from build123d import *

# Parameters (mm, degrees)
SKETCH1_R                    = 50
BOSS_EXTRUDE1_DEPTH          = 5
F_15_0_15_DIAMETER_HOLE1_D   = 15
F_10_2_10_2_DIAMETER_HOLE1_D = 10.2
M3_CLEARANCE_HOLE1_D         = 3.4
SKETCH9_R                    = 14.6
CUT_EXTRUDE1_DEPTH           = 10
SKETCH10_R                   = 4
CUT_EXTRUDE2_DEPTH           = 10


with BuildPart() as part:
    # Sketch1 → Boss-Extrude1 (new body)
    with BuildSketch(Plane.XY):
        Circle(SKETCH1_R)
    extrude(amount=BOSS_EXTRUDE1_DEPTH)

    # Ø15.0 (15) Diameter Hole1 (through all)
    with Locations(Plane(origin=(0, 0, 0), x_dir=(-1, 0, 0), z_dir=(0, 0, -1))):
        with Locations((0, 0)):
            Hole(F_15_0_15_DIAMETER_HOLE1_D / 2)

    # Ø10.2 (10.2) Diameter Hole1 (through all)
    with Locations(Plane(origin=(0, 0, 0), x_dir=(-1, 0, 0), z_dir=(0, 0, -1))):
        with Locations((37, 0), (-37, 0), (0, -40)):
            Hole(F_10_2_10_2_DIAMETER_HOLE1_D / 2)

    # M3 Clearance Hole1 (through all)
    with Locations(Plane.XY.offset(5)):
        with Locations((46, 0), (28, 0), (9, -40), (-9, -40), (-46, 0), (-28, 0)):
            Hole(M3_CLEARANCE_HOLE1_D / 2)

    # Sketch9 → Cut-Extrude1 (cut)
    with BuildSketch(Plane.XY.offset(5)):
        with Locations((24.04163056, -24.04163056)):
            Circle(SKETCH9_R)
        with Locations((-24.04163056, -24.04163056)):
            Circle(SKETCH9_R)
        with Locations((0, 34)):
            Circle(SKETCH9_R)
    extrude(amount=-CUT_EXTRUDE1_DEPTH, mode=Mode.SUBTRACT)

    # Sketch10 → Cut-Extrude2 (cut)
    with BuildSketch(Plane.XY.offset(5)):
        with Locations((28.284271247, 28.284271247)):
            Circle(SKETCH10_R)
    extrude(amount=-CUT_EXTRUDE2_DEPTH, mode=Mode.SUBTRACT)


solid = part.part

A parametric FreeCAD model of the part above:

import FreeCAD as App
import Part
import Sketcher

V = App.Vector
Q = App.Units.Quantity

doc = App.newDocument("Part")
body = doc.addObject("PartDesign::Body", "Body")

sketch1 = doc.addObject("Sketcher::SketchObject", "Sketch")
body.addObject(sketch1)
sketch1.AttachmentSupport = (doc.XY_Plane, [""])
sketch1.MapMode = "FlatFace"
sketch1.addGeometry(Part.Circle(V(0, 0, 0), V(0, 0, 1), 50), False)
sketch1.addConstraint([
    Sketcher.Constraint("Coincident", 0, 3, -1, 1),
    Sketcher.Constraint("Diameter", 0, Q("100 mm")),
])
pad1 = doc.addObject("PartDesign::Pad", "Pad")
body.addObject(pad1)
pad1.Profile = sketch1
pad1.Length = 5

sketch2 = doc.addObject("Sketcher::SketchObject", "Sketch001")
body.addObject(sketch2)
sketch2.AttachmentSupport = (doc.XY_Plane, [""])
sketch2.MapMode = "FlatFace"
sketch2.addGeometry(Part.Circle(V(0, 0, 0), V(0, 0, 1), 7.5), False)
sketch2.addConstraint([
    Sketcher.Constraint("Coincident", 0, 3, -1, 1),
    Sketcher.Constraint("Diameter", 0, Q("15 mm")),
])
doc.recompute()
hole = doc.addObject("PartDesign::Hole", "Hole")
body.addObject(hole)
hole.Profile = sketch2
hole.ThreadType = "None"
hole.Diameter = 15
hole.DepthType = "ThroughAll"
hole.Reversed = True

sketch3 = doc.addObject("Sketcher::SketchObject", "Sketch002")
body.addObject(sketch3)
sketch3.AttachmentSupport = (doc.XY_Plane, [""])
sketch3.MapMode = "FlatFace"
sketch3.addGeometry([
    Part.Circle(V(-37, 0, 0), V(0, 0, 1), 5.1),
    Part.Circle(V(37, 0, 0), V(0, 0, 1), 5.1),
    Part.Circle(V(0, -40, 0), V(0, 0, 1), 5.1),
], False)
sketch3.addConstraint([
    Sketcher.Constraint("Equal", 0, 1),
    Sketcher.Constraint("Equal", 1, 2),
    Sketcher.Constraint("Symmetric", 0, 3, 1, 3, -1, 1),
    Sketcher.Constraint("PointOnObject", 0, 3, -1),
    Sketcher.Constraint("PointOnObject", 2, 3, -2),
    Sketcher.Constraint("Diameter", 0, Q("10.2 mm")),
    Sketcher.Constraint("DistanceX", 0, 3, -1, 1, Q("37 mm")),
    Sketcher.Constraint("DistanceY", 2, 3, -1, 1, Q("40 mm")),
])
doc.recompute()
hole2 = doc.addObject("PartDesign::Hole", "Hole001")
body.addObject(hole2)
hole2.Profile = sketch3
hole2.ThreadType = "None"
hole2.Diameter = 10.2
hole2.DepthType = "ThroughAll"
hole2.Reversed = True

sketch4 = doc.addObject("Sketcher::SketchObject", "Sketch003")
body.addObject(sketch4)
sketch4.AttachmentSupport = (doc.XY_Plane, [""])
sketch4.MapMode = "FlatFace"
sketch4.AttachmentOffset = App.Placement(V(0, 0, 5), App.Rotation())
sketch4.addGeometry([
    Part.Circle(V(46, 0, 0), V(0, 0, 1), 1.7),
    Part.Circle(V(28, 0, 0), V(0, 0, 1), 1.7),
    Part.Circle(V(9, -40, 0), V(0, 0, 1), 1.7),
    Part.Circle(V(-9, -40, 0), V(0, 0, 1), 1.7),
    Part.Circle(V(-46, 0, 0), V(0, 0, 1), 1.7),
    Part.Circle(V(-28, 0, 0), V(0, 0, 1), 1.7),
], False)
sketch4.addConstraint([
    Sketcher.Constraint("Equal", 0, 1),
    Sketcher.Constraint("Equal", 1, 2),
    Sketcher.Constraint("Equal", 2, 3),
    Sketcher.Constraint("Equal", 3, 4),
    Sketcher.Constraint("Equal", 4, 5),
    Sketcher.Constraint("Symmetric", 0, 3, 4, 3, -1, 1),
    Sketcher.Constraint("Symmetric", 1, 3, 5, 3, -1, 1),
    Sketcher.Constraint("Symmetric", 2, 3, 3, 3, -2),
    Sketcher.Constraint("PointOnObject", 0, 3, -1),
    Sketcher.Constraint("PointOnObject", 1, 3, -1),
    Sketcher.Constraint("Diameter", 0, Q("3.4 mm")),
    Sketcher.Constraint("DistanceX", -1, 1, 0, 3, Q("46 mm")),
    Sketcher.Constraint("DistanceX", -1, 1, 1, 3, Q("28 mm")),
    Sketcher.Constraint("DistanceX", -1, 1, 2, 3, Q("9 mm")),
    Sketcher.Constraint("DistanceY", 2, 3, -1, 1, Q("40 mm")),
])
doc.recompute()
hole3 = doc.addObject("PartDesign::Hole", "Hole002")
body.addObject(hole3)
hole3.Profile = sketch4
hole3.ThreadType = "None"
hole3.Diameter = 3.4
hole3.DepthType = "ThroughAll"

sketch5 = doc.addObject("Sketcher::SketchObject", "Sketch004")
body.addObject(sketch5)
sketch5.AttachmentSupport = (doc.XY_Plane, [""])
sketch5.MapMode = "FlatFace"
sketch5.AttachmentOffset = App.Placement(V(0, 0, 5), App.Rotation())
sketch5.addGeometry([
    Part.Circle(V(24.041631, -24.041631, 0), V(0, 0, 1), 14.6),
    Part.Circle(V(-24.041631, -24.041631, 0), V(0, 0, 1), 14.6),
    Part.Circle(V(0, 34, 0), V(0, 0, 1), 14.6),
], False)
sketch5.addConstraint([
    Sketcher.Constraint("Equal", 0, 1),
    Sketcher.Constraint("Equal", 1, 2),
    Sketcher.Constraint("Symmetric", 0, 3, 1, 3, -2),
    Sketcher.Constraint("PointOnObject", 2, 3, -2),
    Sketcher.Constraint("Diameter", 0, Q("29.2 mm")),
    Sketcher.Constraint("DistanceY", -1, 1, 2, 3, Q("34 mm")),
    Sketcher.Constraint("DistanceX", -1, 1, 0, 3, Q("24.041631 mm")),
    Sketcher.Constraint("DistanceY", 0, 3, -1, 1, Q("24.041631 mm")),
])
pocket1 = doc.addObject("PartDesign::Pocket", "Pocket")
body.addObject(pocket1)
pocket1.Profile = sketch5
pocket1.Length = 10

sketch6 = doc.addObject("Sketcher::SketchObject", "Sketch005")
body.addObject(sketch6)
sketch6.AttachmentSupport = (doc.XY_Plane, [""])
sketch6.MapMode = "FlatFace"
sketch6.AttachmentOffset = App.Placement(V(0, 0, 5), App.Rotation())
sketch6.addGeometry(Part.Circle(V(28.284271, 28.284271, 0), V(0, 0, 1), 4), False)
sketch6.addConstraint([
    Sketcher.Constraint("Diameter", 0, Q("8 mm")),
    Sketcher.Constraint("DistanceX", -1, 1, 0, 3, Q("28.284271 mm")),
    Sketcher.Constraint("DistanceY", -1, 1, 0, 3, Q("28.284271 mm")),
])
pocket2 = doc.addObject("PartDesign::Pocket", "Pocket001")
body.addObject(pocket2)
pocket2.Profile = sketch6
pocket2.Length = 10

doc.recompute()
